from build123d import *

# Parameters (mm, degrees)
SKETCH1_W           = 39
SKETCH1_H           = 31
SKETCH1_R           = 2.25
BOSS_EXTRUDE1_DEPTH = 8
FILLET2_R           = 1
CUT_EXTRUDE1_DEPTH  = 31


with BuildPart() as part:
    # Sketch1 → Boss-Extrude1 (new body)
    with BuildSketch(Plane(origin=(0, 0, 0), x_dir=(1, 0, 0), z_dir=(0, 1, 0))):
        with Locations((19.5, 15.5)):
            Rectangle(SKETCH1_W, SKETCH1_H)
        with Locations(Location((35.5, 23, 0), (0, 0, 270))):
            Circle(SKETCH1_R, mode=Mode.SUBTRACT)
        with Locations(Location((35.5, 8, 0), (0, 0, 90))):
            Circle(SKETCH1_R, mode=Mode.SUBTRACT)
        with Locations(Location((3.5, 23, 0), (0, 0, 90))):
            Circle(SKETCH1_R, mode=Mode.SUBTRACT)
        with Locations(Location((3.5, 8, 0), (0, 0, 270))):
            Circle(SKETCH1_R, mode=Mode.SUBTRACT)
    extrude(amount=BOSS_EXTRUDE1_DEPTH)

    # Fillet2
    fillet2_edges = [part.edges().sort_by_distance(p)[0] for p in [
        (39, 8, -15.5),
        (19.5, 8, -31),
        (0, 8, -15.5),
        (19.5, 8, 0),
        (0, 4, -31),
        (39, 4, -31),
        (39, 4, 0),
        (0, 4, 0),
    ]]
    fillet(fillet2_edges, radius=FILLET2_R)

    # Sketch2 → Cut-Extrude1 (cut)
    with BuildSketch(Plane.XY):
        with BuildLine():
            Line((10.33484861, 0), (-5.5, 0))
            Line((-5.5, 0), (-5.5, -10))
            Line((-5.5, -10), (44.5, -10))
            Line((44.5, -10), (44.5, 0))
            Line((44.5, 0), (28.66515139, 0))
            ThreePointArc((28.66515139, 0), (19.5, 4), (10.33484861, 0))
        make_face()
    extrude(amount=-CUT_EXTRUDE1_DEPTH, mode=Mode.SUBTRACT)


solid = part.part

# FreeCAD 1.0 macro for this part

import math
import FreeCAD as App
import Part
import Sketcher

V = App.Vector


def edges_at(feature, points):
    """Names of the edges that pass closest to the given points."""
    edges = feature.Shape.Edges
    near = lambda p: min(range(len(edges)), key=lambda i: edges[i].distToShape(Part.Vertex(*p))[0])
    return sorted({f"Edge{near(p) + 1}" for p in points})


def add_polygon(sketch, points):
    """Adds a closed chain of lines whose ends are joined by coincident constraints."""
    first, n = sketch.GeometryCount, len(points)
    for a, b in zip(points, points[1:] + points[:1]):
        sketch.addGeometry(Part.LineSegment(App.Vector(*a, 0), App.Vector(*b, 0)), False)
    for i in range(n):
        sketch.addConstraint(Sketcher.Constraint("Coincident", first + i, 2, first + (i + 1) % n, 1))

doc = App.newDocument("Part")
body = doc.addObject("PartDesign::Body", "Body")

# Sketch on XZ plane
sketch1 = body.newObject("Sketcher::SketchObject", "Sketch")
sketch1.AttachmentSupport = (doc.getObject("XZ_Plane"), [""])
sketch1.MapMode = "FlatFace"
add_polygon(sketch1, [(0, -31), (0, 0), (39, 0), (39, -31)])  # lines 0-3
sketch1.addGeometry(Part.Circle(V(3.5, -8, 0), V(0, 0, 1), 2.2), False)  # 4
sketch1.addGeometry(Part.Circle(V(35.5, -8, 0), V(0, 0, 1), 2.2), False)  # 5
sketch1.addGeometry(Part.Circle(V(3.5, -23, 0), V(0, 0, 1), 2.2), False)  # 6
sketch1.addGeometry(Part.Circle(V(35.5, -23, 0), V(0, 0, 1), 2.2), False)  # 7
sketch1.addConstraint([
    Sketcher.Constraint("Vertical", 0),
    Sketcher.Constraint("Horizontal", 1),
    Sketcher.Constraint("Vertical", 2),
    Sketcher.Constraint("Horizontal", 3),
    Sketcher.Constraint("Coincident", 0, 2, -1, 1),
    Sketcher.Constraint("Equal", 4, 5),
    Sketcher.Constraint("Equal", 5, 6),
    Sketcher.Constraint("Equal", 6, 7),
    Sketcher.Constraint("Horizontal", 4, 3, 5, 3),
    Sketcher.Constraint("Horizontal", 6, 3, 7, 3),
    Sketcher.Constraint("Vertical", 4, 3, 6, 3),
    Sketcher.Constraint("Vertical", 5, 3, 7, 3),
    Sketcher.Constraint("Diameter", 4, 4.5),
    Sketcher.Constraint("DistanceX", 1, 1, 1, 2, 39.0),
    Sketcher.Constraint("DistanceY", 0, 1, 0, 2, 31.0),
    Sketcher.Constraint("DistanceY", 4, 3, -1, 1, 8.0),
    Sketcher.Constraint("DistanceY", 6, 3, -1, 1, 23.0),
    Sketcher.Constraint("DistanceX", 4, 3, 5, 3, 32.0),
    Sketcher.Constraint("DistanceX", -1, 1, 4, 3, 3.5),
])
pad1 = body.newObject("PartDesign::Pad", "Pad")
pad1.Profile = sketch1
pad1.Length = 8
pad1.Reversed = True
doc.recompute()

fillet = body.newObject("PartDesign::Fillet", "Fillet")
fillet.Base = (pad1, edges_at(pad1, [
    (39, 8, -15.5),
    (19.5, 8, -31),
    (0, 8, -15.5),
    (19.5, 8, 0),
    (0, 4, -31),
    (39, 4, -31),
    (39, 4, 0),
    (0, 4, 0),
]))
fillet.Radius = 1

# Sketch on XY plane
sketch2 = body.newObject("Sketcher::SketchObject", "Sketch001")
sketch2.AttachmentSupport = (doc.getObject("XY_Plane"), [""])
sketch2.MapMode = "FlatFace"
sketch2.addGeometry([
    Part.LineSegment(V(10, 0, 0), V(-6, 0, 0)),  # 0
    Part.LineSegment(V(-6, 0, 0), V(-6, -10, 0)),  # 1
    Part.LineSegment(V(-6, -10, 0), V(44, -10, 0)),  # 2
    Part.LineSegment(V(44, -10, 0), V(44, 0, 0)),  # 3
    Part.LineSegment(V(44, 0, 0), V(29, 0, 0)),  # 4
    Part.ArcOfCircle(Part.Circle(V(20, -8, 0), V(0, 0, 1), 12), math.radians(43), math.radians(137)),  # 5
], False)
sketch2.addConstraint([
    Sketcher.Constraint("Coincident", 0, 2, 1, 1),
    Sketcher.Constraint("Coincident", 1, 2, 2, 1),
    Sketcher.Constraint("Coincident", 2, 2, 3, 1),
    Sketcher.Constraint("Coincident", 3, 2, 4, 1),
    Sketcher.Constraint("Coincident", 4, 2, 5, 1),
    Sketcher.Constraint("Coincident", 5, 2, 0, 1),
    Sketcher.Constraint("Horizontal", 0),
    Sketcher.Constraint("Vertical", 1),
    Sketcher.Constraint("Horizontal", 2),
    Sketcher.Constraint("Vertical", 3),
    Sketcher.Constraint("Horizontal", 4),
    Sketcher.Constraint("PointOnObject", 0, 2, -1),
    Sketcher.Constraint("PointOnObject", 3, 2, -1),
    Sketcher.Constraint("Equal", 0, 4),
    Sketcher.Constraint("Radius", 5, 12.5),
    Sketcher.Constraint("DistanceX", 2, 1, 2, 2, 50.0),
    Sketcher.Constraint("DistanceY", 1, 2, 1, 1, 10.0),
    Sketcher.Constraint("DistanceX", -1, 1, 5, 3, 19.5),
    Sketcher.Constraint("DistanceY", 5, 3, -1, 1, 8.5),
])
pocket1 = body.newObject("PartDesign::Pocket", "Pocket")
pocket1.Profile = sketch2
pocket1.Length = 31

doc.recompute()
